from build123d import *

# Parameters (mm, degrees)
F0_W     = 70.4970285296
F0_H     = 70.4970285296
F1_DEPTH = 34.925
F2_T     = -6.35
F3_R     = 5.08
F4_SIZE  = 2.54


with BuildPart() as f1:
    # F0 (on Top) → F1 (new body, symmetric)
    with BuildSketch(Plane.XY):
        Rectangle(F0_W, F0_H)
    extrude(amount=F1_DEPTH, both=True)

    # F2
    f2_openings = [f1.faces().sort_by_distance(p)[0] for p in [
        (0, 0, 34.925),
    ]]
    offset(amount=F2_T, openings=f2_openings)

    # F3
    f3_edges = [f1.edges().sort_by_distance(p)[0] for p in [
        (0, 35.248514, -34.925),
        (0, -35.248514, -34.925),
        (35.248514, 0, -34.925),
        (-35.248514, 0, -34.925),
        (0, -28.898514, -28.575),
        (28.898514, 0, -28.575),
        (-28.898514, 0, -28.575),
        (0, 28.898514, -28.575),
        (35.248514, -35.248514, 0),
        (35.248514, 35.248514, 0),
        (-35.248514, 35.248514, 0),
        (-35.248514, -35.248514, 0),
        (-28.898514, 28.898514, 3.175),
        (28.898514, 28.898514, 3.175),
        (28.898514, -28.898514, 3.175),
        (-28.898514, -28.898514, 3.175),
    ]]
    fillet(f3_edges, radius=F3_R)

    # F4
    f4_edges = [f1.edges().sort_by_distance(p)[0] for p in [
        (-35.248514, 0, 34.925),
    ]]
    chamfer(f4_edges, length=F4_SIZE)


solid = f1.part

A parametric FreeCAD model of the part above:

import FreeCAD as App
import Part
import Sketcher

V = App.Vector
Q = App.Units.Quantity


def edges_at(feature, points):
    """Names of the edges that pass closest to the given points."""
    edges = feature.Shape.Edges
    near = lambda p: min(range(len(edges)), key=lambda i: edges[i].distToShape(Part.Vertex(*p))[0])
    return sorted({f"Edge{near(p) + 1}" for p in points})


def faces_at(feature, points):
    """Names of the faces that lie closest to the given points."""
    faces = feature.Shape.Faces
    near = lambda p: min(range(len(faces)), key=lambda i: faces[i].distToShape(Part.Vertex(*p))[0])
    return sorted({f"Face{near(p) + 1}" for p in points})


def add_polygon(sketch, points):
    """Adds a closed chain of lines whose ends are joined by coincident constraints."""
    first, n = sketch.GeometryCount, len(points)
    for a, b in zip(points, points[1:] + points[:1]):
        sketch.addGeometry(Part.LineSegment(App.Vector(*a, 0), App.Vector(*b, 0)), False)
    for i in range(n):
        sketch.addConstraint(Sketcher.Constraint("Coincident", first + i, 2, first + (i + 1) % n, 1))

doc = App.newDocument("Part")
body = doc.addObject("PartDesign::Body", "Body")

sketch1 = body.newObject("Sketcher::SketchObject", "Sketch")
sketch1.AttachmentSupport = (doc.getObject("XY_Plane"), [""])
sketch1.MapMode = "FlatFace"
add_polygon(sketch1, [(-35.248514, 35.248514), (-35.248514, -35.248514), (35.248514, -35.248514), (35.248514, 35.248514)])
sketch1.addConstraint(Sketcher.Constraint("Vertical", 0))
sketch1.addConstraint(Sketcher.Constraint("Horizontal", 1))
sketch1.addConstraint(Sketcher.Constraint("Vertical", 2))
sketch1.addConstraint(Sketcher.Constraint("Horizontal", 3))
sketch1.addConstraint(Sketcher.Constraint("Symmetric", 0, 2, 2, 2, -1, 1))
sketch1.addConstraint(Sketcher.Constraint("Equal", 3, 0))
sketch1.addConstraint(Sketcher.Constraint("DistanceX", 1, 1, 1, 2, 70.497029))
pad1 = body.newObject("PartDesign::Pad", "Pad")
pad1.Profile = sketch1
pad1.Length = Q("2.75 in")
pad1.Midplane = True
doc.recompute()

thickness = body.newObject("PartDesign::Thickness", "Thickness")
thickness.Base = (pad1, faces_at(pad1, [(0, 0, 34.925)]))
thickness.Value = Q("0.25 in")
thickness.Reversed = True
thickness.Join = "Arc"
doc.recompute()

fillet = body.newObject("PartDesign::Fillet", "Fillet")
fillet.Base = (thickness, edges_at(thickness, [
    (0, 35.249, -34.925),
    (0, -35.249, -34.925),
    (35.249, 0, -34.925),
    (-35.249, 0, -34.925),
    (0, -28.899, -28.575),
    (28.899, 0, -28.575),
    (-28.899, 0, -28.575),
    (0, 28.899, -28.575),
    (35.249, -35.249, 0),
    (35.249, 35.249, 0),
    (-35.249, 35.249, 0),
    (-35.249, -35.249, 0),
    (-28.899, 28.899, 3.175),
    (28.899, 28.899, 3.175),
    (28.899, -28.899, 3.175),
    (-28.899, -28.899, 3.175),
]))
fillet.Radius = Q("0.2 in")
doc.recompute()

chamfer = body.newObject("PartDesign::Chamfer", "Chamfer")
chamfer.Base = (fillet, edges_at(fillet, [(-35.249, 0, 34.925)]))
chamfer.Size = Q("0.1 in")

doc.recompute()
